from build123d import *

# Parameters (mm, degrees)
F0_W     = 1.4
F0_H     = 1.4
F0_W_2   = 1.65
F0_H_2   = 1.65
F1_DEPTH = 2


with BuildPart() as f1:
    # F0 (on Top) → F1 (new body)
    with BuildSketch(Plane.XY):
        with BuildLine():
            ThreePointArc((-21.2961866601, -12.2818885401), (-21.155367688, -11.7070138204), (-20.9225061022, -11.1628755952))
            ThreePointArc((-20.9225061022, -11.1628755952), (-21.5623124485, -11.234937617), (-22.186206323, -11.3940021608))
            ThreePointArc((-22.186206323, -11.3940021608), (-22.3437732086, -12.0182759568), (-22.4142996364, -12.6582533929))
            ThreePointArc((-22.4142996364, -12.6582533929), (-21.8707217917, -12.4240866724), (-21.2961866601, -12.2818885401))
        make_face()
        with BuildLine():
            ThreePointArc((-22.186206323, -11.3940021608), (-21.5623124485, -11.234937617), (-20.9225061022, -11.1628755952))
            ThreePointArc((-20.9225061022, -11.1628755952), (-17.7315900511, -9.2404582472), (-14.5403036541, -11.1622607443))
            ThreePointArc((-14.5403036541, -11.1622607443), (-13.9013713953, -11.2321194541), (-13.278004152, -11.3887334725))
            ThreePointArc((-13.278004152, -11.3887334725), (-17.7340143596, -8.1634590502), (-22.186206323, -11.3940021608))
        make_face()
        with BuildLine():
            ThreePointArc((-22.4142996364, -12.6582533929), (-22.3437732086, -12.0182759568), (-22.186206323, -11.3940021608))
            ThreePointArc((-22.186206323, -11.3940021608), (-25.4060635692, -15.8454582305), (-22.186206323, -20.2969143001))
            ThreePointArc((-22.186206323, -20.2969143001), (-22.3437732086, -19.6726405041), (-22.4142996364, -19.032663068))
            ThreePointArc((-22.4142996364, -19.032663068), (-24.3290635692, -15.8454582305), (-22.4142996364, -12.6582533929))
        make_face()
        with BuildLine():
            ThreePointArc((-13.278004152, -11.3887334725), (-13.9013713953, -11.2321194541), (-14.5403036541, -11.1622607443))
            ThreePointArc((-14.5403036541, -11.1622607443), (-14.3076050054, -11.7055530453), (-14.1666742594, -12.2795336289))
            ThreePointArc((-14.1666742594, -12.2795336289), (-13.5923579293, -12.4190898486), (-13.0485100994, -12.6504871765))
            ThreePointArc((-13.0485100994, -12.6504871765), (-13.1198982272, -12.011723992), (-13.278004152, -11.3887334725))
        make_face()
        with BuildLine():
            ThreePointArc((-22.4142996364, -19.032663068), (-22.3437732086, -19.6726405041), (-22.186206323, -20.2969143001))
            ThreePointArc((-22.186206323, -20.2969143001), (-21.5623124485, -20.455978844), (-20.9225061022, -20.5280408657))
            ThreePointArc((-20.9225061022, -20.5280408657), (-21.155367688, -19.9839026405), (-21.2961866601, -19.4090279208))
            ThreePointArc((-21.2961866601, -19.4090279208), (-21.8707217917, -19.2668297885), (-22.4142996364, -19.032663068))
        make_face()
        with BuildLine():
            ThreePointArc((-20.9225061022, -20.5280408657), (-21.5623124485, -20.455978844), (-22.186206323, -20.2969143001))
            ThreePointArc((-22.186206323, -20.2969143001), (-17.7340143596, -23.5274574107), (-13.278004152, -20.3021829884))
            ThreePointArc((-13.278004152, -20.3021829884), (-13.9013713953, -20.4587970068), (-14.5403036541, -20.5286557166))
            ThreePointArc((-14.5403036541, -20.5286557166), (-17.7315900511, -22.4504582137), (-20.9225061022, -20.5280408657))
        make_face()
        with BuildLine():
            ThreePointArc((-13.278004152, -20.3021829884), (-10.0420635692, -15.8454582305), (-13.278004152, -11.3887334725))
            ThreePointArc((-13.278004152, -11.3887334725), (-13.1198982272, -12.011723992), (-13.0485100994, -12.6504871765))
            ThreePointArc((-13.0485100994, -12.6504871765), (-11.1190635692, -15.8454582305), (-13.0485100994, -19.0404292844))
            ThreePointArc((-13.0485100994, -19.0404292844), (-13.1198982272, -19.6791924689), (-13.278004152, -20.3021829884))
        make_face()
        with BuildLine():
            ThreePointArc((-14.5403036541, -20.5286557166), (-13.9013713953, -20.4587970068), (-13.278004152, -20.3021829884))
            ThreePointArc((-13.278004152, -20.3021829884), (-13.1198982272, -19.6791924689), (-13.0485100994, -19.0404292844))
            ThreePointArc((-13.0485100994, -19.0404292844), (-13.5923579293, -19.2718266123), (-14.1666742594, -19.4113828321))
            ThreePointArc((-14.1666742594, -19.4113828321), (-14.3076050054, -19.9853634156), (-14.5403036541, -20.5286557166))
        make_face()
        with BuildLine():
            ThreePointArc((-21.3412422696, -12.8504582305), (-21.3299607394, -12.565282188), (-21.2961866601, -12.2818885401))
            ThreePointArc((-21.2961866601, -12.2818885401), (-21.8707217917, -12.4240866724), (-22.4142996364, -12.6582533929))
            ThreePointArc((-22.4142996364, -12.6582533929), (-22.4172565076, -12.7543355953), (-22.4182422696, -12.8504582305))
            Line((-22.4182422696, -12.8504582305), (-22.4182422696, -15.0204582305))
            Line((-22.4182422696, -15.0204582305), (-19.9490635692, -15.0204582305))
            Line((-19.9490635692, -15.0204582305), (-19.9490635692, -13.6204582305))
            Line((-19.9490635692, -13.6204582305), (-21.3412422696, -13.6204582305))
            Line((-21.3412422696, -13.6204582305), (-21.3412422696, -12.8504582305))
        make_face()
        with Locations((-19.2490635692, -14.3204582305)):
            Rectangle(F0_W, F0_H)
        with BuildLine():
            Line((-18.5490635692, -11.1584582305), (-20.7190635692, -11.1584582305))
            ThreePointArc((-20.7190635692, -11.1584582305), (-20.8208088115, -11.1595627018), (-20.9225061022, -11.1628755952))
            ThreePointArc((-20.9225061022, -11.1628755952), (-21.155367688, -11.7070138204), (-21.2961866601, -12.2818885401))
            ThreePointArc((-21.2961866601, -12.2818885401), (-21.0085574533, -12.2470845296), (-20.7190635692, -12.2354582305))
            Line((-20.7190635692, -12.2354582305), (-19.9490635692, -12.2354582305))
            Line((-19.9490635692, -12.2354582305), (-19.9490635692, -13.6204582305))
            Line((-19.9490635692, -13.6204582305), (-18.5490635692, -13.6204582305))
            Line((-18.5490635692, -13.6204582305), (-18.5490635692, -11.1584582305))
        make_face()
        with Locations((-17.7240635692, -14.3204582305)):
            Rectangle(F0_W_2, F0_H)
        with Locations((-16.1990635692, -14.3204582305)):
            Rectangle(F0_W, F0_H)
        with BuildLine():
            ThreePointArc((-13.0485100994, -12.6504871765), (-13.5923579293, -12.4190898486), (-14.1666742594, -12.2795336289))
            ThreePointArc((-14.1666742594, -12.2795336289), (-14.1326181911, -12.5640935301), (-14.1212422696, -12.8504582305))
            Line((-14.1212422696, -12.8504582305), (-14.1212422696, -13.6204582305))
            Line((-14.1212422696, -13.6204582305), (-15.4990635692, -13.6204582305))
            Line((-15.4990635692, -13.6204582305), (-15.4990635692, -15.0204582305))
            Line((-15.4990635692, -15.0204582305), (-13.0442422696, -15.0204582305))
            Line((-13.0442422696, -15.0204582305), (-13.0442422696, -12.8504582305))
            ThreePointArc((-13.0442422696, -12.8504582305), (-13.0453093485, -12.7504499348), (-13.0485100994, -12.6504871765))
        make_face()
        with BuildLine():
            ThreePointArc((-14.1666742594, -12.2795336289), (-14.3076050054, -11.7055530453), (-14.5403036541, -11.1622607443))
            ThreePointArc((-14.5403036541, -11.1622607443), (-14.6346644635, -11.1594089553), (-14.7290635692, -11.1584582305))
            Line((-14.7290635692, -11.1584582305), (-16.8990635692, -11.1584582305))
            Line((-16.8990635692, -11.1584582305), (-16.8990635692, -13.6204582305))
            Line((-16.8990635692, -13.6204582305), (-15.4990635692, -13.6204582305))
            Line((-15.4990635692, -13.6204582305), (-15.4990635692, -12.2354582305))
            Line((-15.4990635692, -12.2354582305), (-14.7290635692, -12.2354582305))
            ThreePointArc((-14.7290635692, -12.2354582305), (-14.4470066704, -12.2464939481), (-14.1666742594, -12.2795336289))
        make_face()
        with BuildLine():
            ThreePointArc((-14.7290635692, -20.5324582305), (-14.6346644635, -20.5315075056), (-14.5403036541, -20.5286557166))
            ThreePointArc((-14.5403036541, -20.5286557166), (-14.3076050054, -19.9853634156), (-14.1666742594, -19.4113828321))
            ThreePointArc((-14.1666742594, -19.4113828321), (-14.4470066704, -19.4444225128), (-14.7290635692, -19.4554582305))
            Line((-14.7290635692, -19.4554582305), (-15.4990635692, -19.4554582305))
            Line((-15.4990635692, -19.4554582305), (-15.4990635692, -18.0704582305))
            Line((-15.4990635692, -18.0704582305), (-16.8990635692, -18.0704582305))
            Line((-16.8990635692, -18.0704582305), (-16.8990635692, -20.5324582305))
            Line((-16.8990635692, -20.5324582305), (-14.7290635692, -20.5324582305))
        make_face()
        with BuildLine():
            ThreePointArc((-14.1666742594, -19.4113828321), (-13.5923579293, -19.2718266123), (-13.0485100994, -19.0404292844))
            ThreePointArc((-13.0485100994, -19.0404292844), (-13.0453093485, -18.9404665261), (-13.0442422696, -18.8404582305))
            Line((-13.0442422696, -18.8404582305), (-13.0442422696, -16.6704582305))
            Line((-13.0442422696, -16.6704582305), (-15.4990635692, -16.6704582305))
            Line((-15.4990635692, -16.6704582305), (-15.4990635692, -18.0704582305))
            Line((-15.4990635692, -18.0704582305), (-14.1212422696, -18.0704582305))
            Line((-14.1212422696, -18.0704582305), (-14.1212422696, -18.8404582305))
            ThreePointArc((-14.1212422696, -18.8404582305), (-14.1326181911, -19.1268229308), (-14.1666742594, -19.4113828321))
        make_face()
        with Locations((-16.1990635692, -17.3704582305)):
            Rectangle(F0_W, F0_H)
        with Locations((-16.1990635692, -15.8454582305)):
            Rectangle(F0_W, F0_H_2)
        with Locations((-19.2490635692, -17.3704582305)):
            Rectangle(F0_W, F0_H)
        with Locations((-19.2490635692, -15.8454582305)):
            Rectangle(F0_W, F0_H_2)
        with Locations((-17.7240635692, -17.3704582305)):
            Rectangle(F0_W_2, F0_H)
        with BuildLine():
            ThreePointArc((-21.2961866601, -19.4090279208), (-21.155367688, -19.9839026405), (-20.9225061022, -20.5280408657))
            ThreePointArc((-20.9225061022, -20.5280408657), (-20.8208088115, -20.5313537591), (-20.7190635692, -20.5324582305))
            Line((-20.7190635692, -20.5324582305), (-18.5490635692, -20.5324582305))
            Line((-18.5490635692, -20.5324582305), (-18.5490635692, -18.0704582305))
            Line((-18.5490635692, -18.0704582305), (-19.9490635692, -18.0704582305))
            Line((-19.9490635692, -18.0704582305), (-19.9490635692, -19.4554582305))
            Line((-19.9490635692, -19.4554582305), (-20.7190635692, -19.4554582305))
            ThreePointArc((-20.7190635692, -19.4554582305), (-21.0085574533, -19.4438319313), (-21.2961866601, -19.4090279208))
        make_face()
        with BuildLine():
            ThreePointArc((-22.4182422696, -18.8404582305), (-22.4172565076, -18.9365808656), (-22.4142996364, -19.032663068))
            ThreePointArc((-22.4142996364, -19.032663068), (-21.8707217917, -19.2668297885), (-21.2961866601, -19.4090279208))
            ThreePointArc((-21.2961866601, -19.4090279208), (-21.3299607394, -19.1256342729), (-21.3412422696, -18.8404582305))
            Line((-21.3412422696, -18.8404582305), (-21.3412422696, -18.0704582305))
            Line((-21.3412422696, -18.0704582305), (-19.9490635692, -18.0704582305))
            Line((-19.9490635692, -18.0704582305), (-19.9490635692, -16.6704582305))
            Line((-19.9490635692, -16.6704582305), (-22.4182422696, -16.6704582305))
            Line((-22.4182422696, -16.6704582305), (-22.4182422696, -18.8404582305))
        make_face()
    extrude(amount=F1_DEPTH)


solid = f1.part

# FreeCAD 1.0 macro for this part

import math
import FreeCAD as App
import Part
import Sketcher

V = App.Vector
Q = App.Units.Quantity

doc = App.newDocument("Part")
body = doc.addObject("PartDesign::Body", "Body")

sketch1 = doc.addObject("Sketcher::SketchObject", "Sketch")
body.addObject(sketch1)
sketch1.AttachmentSupport = (doc.XY_Plane, [""])
sketch1.MapMode = "FlatFace"
sketch1.addGeometry([
    Part.ArcOfCircle(Part.Circle(V(-17.73, -18.84, 0), V(0, 0, 1), 4.69), math.radians(-162), math.radians(-18)),
    Part.ArcOfCircle(Part.Circle(V(-14.73, -15.85, 0), V(0, 0, 1), 4.69), math.radians(-72), math.radians(72)),
    Part.ArcOfCircle(Part.Circle(V(-17.73, -12.85, 0), V(0, 0, 1), 4.69), math.radians(18), math.radians(162)),
    Part.ArcOfCircle(Part.Circle(V(-20.72, -15.85, 0), V(0, 0, 1), 4.69), math.radians(108), math.radians(252)),
    Part.LineSegment(V(-13.04, -16.67, 0), V(-15.5, -16.67, 0)),
    Part.LineSegment(V(-15.5, -16.67, 0), V(-15.5, -15.02, 0)),
    Part.LineSegment(V(-15.5, -15.02, 0), V(-13.04, -15.02, 0)),
    Part.LineSegment(V(-13.04, -15.02, 0), V(-13.04, -12.85, 0)),
    Part.ArcOfCircle(Part.Circle(V(-17.73, -12.85, 0), V(0, 0, 1), 4.69), math.radians(0), math.radians(2.45)),
    Part.ArcOfCircle(Part.Circle(V(-14.73, -15.85, 0), V(0, 0, 1), 3.61), math.radians(-62), math.radians(62)),
    Part.ArcOfCircle(Part.Circle(V(-17.73, -18.84, 0), V(0, 0, 1), 4.69), math.radians(-2.45), math.radians(0)),
    Part.LineSegment(V(-13.04, -18.84, 0), V(-13.04, -16.67, 0)),
    Part.LineSegment(V(-16.9, -20.53, 0), V(-14.73, -20.53, 0)),
    Part.ArcOfCircle(Part.Circle(V(-14.73, -15.85, 0), V(0, 0, 1), 4.69), math.radians(-90), math.radians(-87.69)),
    Part.ArcOfCircle(Part.Circle(V(-17.73, -18.84, 0), V(0, 0, 1), 3.61), math.radians(-152), math.radians(-28)),
    Part.ArcOfCircle(Part.Circle(V(-20.72, -15.85, 0), V(0, 0, 1), 4.69), math.radians(-92.49), math.radians(-90)),
    Part.LineSegment(V(-20.72, -20.53, 0), V(-18.55, -20.53, 0)),
    Part.LineSegment(V(-18.55, -20.53, 0), V(-18.55, -18.07, 0)),
    Part.LineSegment(V(-18.55, -18.07, 0), V(-16.9, -18.07, 0)),
    Part.LineSegment(V(-16.9, -18.07, 0), V(-16.9, -20.53, 0)),
    Part.ArcOfCircle(Part.Circle(V(-20.72, -15.85, 0), V(0, 0, 1), 3.61), math.radians(118), math.radians(242)),
    Part.ArcOfCircle(Part.Circle(V(-17.73, -12.85, 0), V(0, 0, 1), 4.69), math.radians(177.65), math.radians(180)),
    Part.LineSegment(V(-22.42, -12.85, 0), V(-22.42, -15.02, 0)),
    Part.LineSegment(V(-22.42, -15.02, 0), V(-19.95, -15.02, 0)),
    Part.LineSegment(V(-19.95, -15.02, 0), V(-19.95, -16.67, 0)),
    Part.LineSegment(V(-19.95, -16.67, 0), V(-22.42, -16.67, 0)),
    Part.LineSegment(V(-22.42, -16.67, 0), V(-22.42, -18.84, 0)),
    Part.ArcOfCircle(Part.Circle(V(-17.73, -18.84, 0), V(0, 0, 1), 4.69), math.radians(-180), math.radians(-177.65)),
    Part.LineSegment(V(-19.95, -18.07, 0), V(-19.95, -19.46, 0)),
    Part.LineSegment(V(-19.95, -19.46, 0), V(-20.72, -19.46, 0)),
    Part.ArcOfCircle(Part.Circle(V(-20.72, -15.85, 0), V(0, 0, 1), 3.61), math.radians(-99.2), math.radians(-90)),
    Part.ArcOfCircle(Part.Circle(V(-17.73, -18.84, 0), V(0, 0, 1), 3.61), math.radians(180), math.radians(189.06)),
    Part.LineSegment(V(-21.34, -18.84, 0), V(-21.34, -18.07, 0)),
    Part.LineSegment(V(-21.34, -18.07, 0), V(-19.95, -18.07, 0)),
    Part.LineSegment(V(-18.55, -16.67, 0), V(-18.55, -15.02, 0)),
    Part.LineSegment(V(-18.55, -15.02, 0), V(-16.9, -15.02, 0)),
    Part.LineSegment(V(-16.9, -15.02, 0), V(-16.9, -16.67, 0)),
    Part.LineSegment(V(-16.9, -16.67, 0), V(-18.55, -16.67, 0)),
    Part.LineSegment(V(-15.5, -19.46, 0), V(-15.5, -18.07, 0)),
    Part.LineSegment(V(-15.5, -18.07, 0), V(-14.12, -18.07, 0)),
    Part.LineSegment(V(-14.12, -18.07, 0), V(-14.12, -18.84, 0)),
    Part.ArcOfCircle(Part.Circle(V(-17.73, -18.84, 0), V(0, 0, 1), 3.61), math.radians(-9.1), math.radians(0)),
    Part.ArcOfCircle(Part.Circle(V(-14.73, -15.85, 0), V(0, 0, 1), 3.61), math.radians(-90), math.radians(-81.04)),
    Part.LineSegment(V(-14.73, -19.46, 0), V(-15.5, -19.46, 0)),
    Part.LineSegment(V(-19.95, -13.62, 0), V(-21.34, -13.62, 0)),
    Part.LineSegment(V(-21.34, -13.62, 0), V(-21.34, -12.85, 0)),
    Part.ArcOfCircle(Part.Circle(V(-17.73, -12.85, 0), V(0, 0, 1), 3.61), math.radians(170.94), math.radians(180)),
    Part.ArcOfCircle(Part.Circle(V(-20.72, -15.85, 0), V(0, 0, 1), 3.61), math.radians(90), math.radians(99.2)),
    Part.LineSegment(V(-20.72, -12.24, 0), V(-19.95, -12.24, 0)),
    Part.LineSegment(V(-19.95, -12.24, 0), V(-19.95, -13.62, 0)),
    Part.LineSegment(V(-18.55, -13.62, 0), V(-18.55, -11.16, 0)),
    Part.LineSegment(V(-18.55, -11.16, 0), V(-20.72, -11.16, 0)),
    Part.ArcOfCircle(Part.Circle(V(-20.72, -15.85, 0), V(0, 0, 1), 4.69), math.radians(90), math.radians(92.49)),
    Part.ArcOfCircle(Part.Circle(V(-17.73, -12.85, 0), V(0, 0, 1), 3.61), math.radians(28), math.radians(152)),
    Part.ArcOfCircle(Part.Circle(V(-14.73, -15.85, 0), V(0, 0, 1), 4.69), math.radians(87.69), math.radians(90)),
    Part.LineSegment(V(-14.73, -11.16, 0), V(-16.9, -11.16, 0)),
    Part.LineSegment(V(-16.9, -11.16, 0), V(-16.9, -13.62, 0)),
    Part.LineSegment(V(-16.9, -13.62, 0), V(-18.55, -13.62, 0)),
    Part.ArcOfCircle(Part.Circle(V(-17.73, -12.85, 0), V(0, 0, 1), 3.61), math.radians(0), math.radians(9.1)),
    Part.LineSegment(V(-14.12, -12.85, 0), V(-14.12, -13.62, 0)),
    Part.LineSegment(V(-14.12, -13.62, 0), V(-15.5, -13.62, 0)),
    Part.LineSegment(V(-15.5, -13.62, 0), V(-15.5, -12.24, 0)),
    Part.LineSegment(V(-15.5, -12.24, 0), V(-14.73, -12.24, 0)),
    Part.ArcOfCircle(Part.Circle(V(-14.73, -15.85, 0), V(0, 0, 1), 3.61), math.radians(81.04), math.radians(90)),
], False)
sketch1.addConstraint([
    Sketcher.Constraint("Coincident", 0, 2, 1, 1),
    Sketcher.Constraint("Coincident", 1, 2, 2, 1),
    Sketcher.Constraint("Coincident", 2, 2, 3, 1),
    Sketcher.Constraint("Coincident", 3, 2, 0, 1),
    Sketcher.Constraint("Coincident", 4, 2, 5, 1),
    Sketcher.Constraint("Coincident", 5, 2, 6, 1),
    Sketcher.Constraint("Coincident", 6, 2, 7, 1),
    Sketcher.Constraint("Tangent", 7, 2, 8, 1),
    Sketcher.Constraint("Coincident", 8, 2, 9, 2),
    Sketcher.Constraint("Coincident", 9, 1, 10, 1),
    Sketcher.Constraint("Tangent", 10, 2, 11, 1),
    Sketcher.Constraint("Coincident", 11, 2, 4, 1),
    Sketcher.Constraint("Tangent", 12, 2, 13, 1),
    Sketcher.Constraint("Coincident", 13, 2, 14, 2),
    Sketcher.Constraint("Coincident", 14, 1, 15, 1),
    Sketcher.Constraint("Tangent", 15, 2, 16, 1),
    Sketcher.Constraint("Coincident", 16, 2, 17, 1),
    Sketcher.Constraint("Coincident", 17, 2, 18, 1),
    Sketcher.Constraint("Coincident", 18, 2, 19, 1),
    Sketcher.Constraint("Coincident", 19, 2, 12, 1),
    Sketcher.Constraint("Coincident", 20, 1, 21, 1),
    Sketcher.Constraint("Tangent", 21, 2, 22, 1),
    Sketcher.Constraint("Coincident", 22, 2, 23, 1),
    Sketcher.Constraint("Coincident", 23, 2, 24, 1),
    Sketcher.Constraint("Coincident", 24, 2, 25, 1),
    Sketcher.Constraint("Coincident", 25, 2, 26, 1),
    Sketcher.Constraint("Tangent", 26, 2, 27, 1),
    Sketcher.Constraint("Coincident", 27, 2, 20, 2),
    Sketcher.Constraint("Coincident", 28, 2, 29, 1),
    Sketcher.Constraint("Tangent", 29, 2, 30, 2),
    Sketcher.Constraint("Coincident", 30, 1, 31, 2),
    Sketcher.Constraint("Tangent", 31, 1, 32, 1),
    Sketcher.Constraint("Coincident", 32, 2, 33, 1),
    Sketcher.Constraint("Coincident", 33, 2, 28, 1),
    Sketcher.Constraint("Coincident", 34, 2, 35, 1),
    Sketcher.Constraint("Coincident", 35, 2, 36, 1),
    Sketcher.Constraint("Coincident", 36, 2, 37, 1),
    Sketcher.Constraint("Coincident", 37, 2, 34, 1),
    Sketcher.Constraint("Coincident", 38, 2, 39, 1),
    Sketcher.Constraint("Coincident", 39, 2, 40, 1),
    Sketcher.Constraint("Tangent", 40, 2, 41, 2),
    Sketcher.Constraint("Coincident", 41, 1, 42, 2),
    Sketcher.Constraint("Tangent", 42, 1, 43, 1),
    Sketcher.Constraint("Coincident", 43, 2, 38, 1),
    Sketcher.Constraint("Coincident", 44, 2, 45, 1),
    Sketcher.Constraint("Tangent", 45, 2, 46, 2),
    Sketcher.Constraint("Coincident", 46, 1, 47, 2),
    Sketcher.Constraint("Tangent", 47, 1, 48, 1),
    Sketcher.Constraint("Coincident", 48, 2, 49, 1),
    Sketcher.Constraint("Coincident", 49, 2, 44, 1),
    Sketcher.Constraint("Coincident", 50, 2, 51, 1),
    Sketcher.Constraint("Tangent", 51, 2, 52, 1),
    Sketcher.Constraint("Coincident", 52, 2, 53, 2),
    Sketcher.Constraint("Coincident", 53, 1, 54, 1),
    Sketcher.Constraint("Tangent", 54, 2, 55, 1),
    Sketcher.Constraint("Coincident", 55, 2, 56, 1),
    Sketcher.Constraint("Coincident", 56, 2, 57, 1),
    Sketcher.Constraint("Coincident", 57, 2, 50, 1),
    Sketcher.Constraint("Tangent", 58, 1, 59, 1),
    Sketcher.Constraint("Coincident", 59, 2, 60, 1),
    Sketcher.Constraint("Coincident", 60, 2, 61, 1),
    Sketcher.Constraint("Coincident", 61, 2, 62, 1),
    Sketcher.Constraint("Tangent", 62, 2, 63, 2),
    Sketcher.Constraint("Coincident", 63, 1, 58, 2),
    Sketcher.Constraint("Horizontal", 4),
    Sketcher.Constraint("Vertical", 5),
    Sketcher.Constraint("Horizontal", 6),
    Sketcher.Constraint("Vertical", 7),
    Sketcher.Constraint("Vertical", 11),
    Sketcher.Constraint("Horizontal", 12),
    Sketcher.Constraint("Horizontal", 16),
    Sketcher.Constraint("Vertical", 17),
    Sketcher.Constraint("Horizontal", 18),
    Sketcher.Constraint("Vertical", 19),
    Sketcher.Constraint("Vertical", 22),
    Sketcher.Constraint("Horizontal", 23),
    Sketcher.Constraint("Vertical", 24),
    Sketcher.Constraint("Horizontal", 25),
    Sketcher.Constraint("Vertical", 26),
    Sketcher.Constraint("Vertical", 28),
    Sketcher.Constraint("Horizontal", 29),
    Sketcher.Constraint("Vertical", 32),
    Sketcher.Constraint("Horizontal", 33),
    Sketcher.Constraint("Vertical", 34),
    Sketcher.Constraint("Horizontal", 35),
    Sketcher.Constraint("Vertical", 36),
    Sketcher.Constraint("Horizontal", 37),
    Sketcher.Constraint("Vertical", 38),
    Sketcher.Constraint("Horizontal", 39),
    Sketcher.Constraint("Vertical", 40),
    Sketcher.Constraint("Horizontal", 43),
    Sketcher.Constraint("Horizontal", 44),
    Sketcher.Constraint("Vertical", 45),
    Sketcher.Constraint("Horizontal", 48),
    Sketcher.Constraint("Vertical", 49),
    Sketcher.Constraint("Vertical", 50),
    Sketcher.Constraint("Horizontal", 51),
    Sketcher.Constraint("Horizontal", 55),
    Sketcher.Constraint("Vertical", 56),
    Sketcher.Constraint("Horizontal", 57),
    Sketcher.Constraint("Vertical", 59),
    Sketcher.Constraint("Horizontal", 60),
    Sketcher.Constraint("Vertical", 61),
    Sketcher.Constraint("Horizontal", 62),
    Sketcher.Constraint("Coincident", 8, 3, 2, 3),
    Sketcher.Constraint("Coincident", 9, 3, 1, 3),
    Sketcher.Constraint("Coincident", 10, 3, 0, 3),
    Sketcher.Constraint("Coincident", 13, 3, 1, 3),
    Sketcher.Constraint("Coincident", 14, 3, 0, 3),
    Sketcher.Constraint("Coincident", 15, 3, 3, 3),
    Sketcher.Constraint("Coincident", 20, 3, 3, 3),
    Sketcher.Constraint("Coincident", 21, 3, 2, 3),
    Sketcher.Constraint("Coincident", 27, 3, 0, 3),
    Sketcher.Constraint("Coincident", 30, 3, 3, 3),
    Sketcher.Constraint("Coincident", 31, 3, 0, 3),
    Sketcher.Constraint("Coincident", 41, 3, 0, 3),
    Sketcher.Constraint("Coincident", 42, 3, 1, 3),
    Sketcher.Constraint("Coincident", 46, 3, 2, 3),
    Sketcher.Constraint("Coincident", 47, 3, 3, 3),
    Sketcher.Constraint("Coincident", 52, 3, 3, 3),
    Sketcher.Constraint("Coincident", 53, 3, 2, 3),
    Sketcher.Constraint("Coincident", 54, 3, 1, 3),
    Sketcher.Constraint("Coincident", 58, 3, 2, 3),
    Sketcher.Constraint("Coincident", 63, 3, 1, 3),
    Sketcher.Constraint("Equal", 0, 1),
    Sketcher.Constraint("Equal", 1, 2),
    Sketcher.Constraint("Equal", 2, 3),
    Sketcher.Constraint("Equal", 3, 8),
    Sketcher.Constraint("Equal", 8, 10),
    Sketcher.Constraint("Equal", 10, 13),
    Sketcher.Constraint("Equal", 9, 14),
    Sketcher.Constraint("Equal", 13, 15),
    Sketcher.Constraint("Equal", 14, 20),
    Sketcher.Constraint("Equal", 15, 21),
    Sketcher.Constraint("Equal", 21, 27),
    Sketcher.Constraint("Equal", 20, 30),
    Sketcher.Constraint("Equal", 30, 31),
    Sketcher.Constraint("Equal", 31, 41),
    Sketcher.Constraint("Equal", 41, 42),
    Sketcher.Constraint("Equal", 42, 46),
    Sketcher.Constraint("Equal", 46, 47),
    Sketcher.Constraint("Equal", 27, 52),
    Sketcher.Constraint("Equal", 47, 53),
    Sketcher.Constraint("Equal", 52, 54),
    Sketcher.Constraint("Equal", 53, 58),
    Sketcher.Constraint("Equal", 58, 63),
    Sketcher.Constraint("Horizontal", 1, 3, 3, 3),
    Sketcher.Constraint("Horizontal", 6, 2, 22, 2),
    Sketcher.Constraint("Horizontal", 11, 2, 24, 2),
    Sketcher.Constraint("Horizontal", 18, 2, 32, 2),
    Sketcher.Constraint("Horizontal", 23, 2, 34, 2),
    Sketcher.Constraint("Horizontal", 25, 2, 36, 2),
    Sketcher.Constraint("Horizontal", 33, 2, 38, 2),
    Sketcher.Constraint("Horizontal", 49, 2, 56, 2),
    Sketcher.Constraint("Horizontal", 57, 2, 59, 2),
    Sketcher.Constraint("Vertical", 0, 3, 2, 3),
    Sketcher.Constraint("Vertical", 0, 2, 1, 2),
    Sketcher.Constraint("Vertical", 24, 2, 28, 2),
    Sketcher.Constraint("Vertical", 17, 2, 34, 2),
    Sketcher.Constraint("Vertical", 19, 2, 35, 2),
    Sketcher.Constraint("Vertical", 5, 2, 38, 2),
    Sketcher.Constraint("Vertical", 33, 2, 48, 2),
    Sketcher.Constraint("Vertical", 37, 2, 50, 2),
    Sketcher.Constraint("Vertical", 36, 2, 55, 2),
    Sketcher.Constraint("Vertical", 43, 2, 60, 2),
    Sketcher.Constraint("Equal", 12, 16),
    Sketcher.Constraint("Equal", 29, 43),
    Sketcher.Constraint("Equal", 57, 5),
    Sketcher.Constraint("Equal", 55, 7),
    Sketcher.Constraint("Equal", 7, 11),
    Sketcher.Constraint("Equal", 62, 32),
    Sketcher.Constraint("Equal", 40, 45),
    Sketcher.Constraint("Radius", 9, Q("3.61 mm")),
    Sketcher.Constraint("Radius", 0, Q("4.687 mm")),
    Sketcher.Constraint("DistanceX", 12, 1, 12, 2, Q("2.17 mm")),
    Sketcher.Constraint("DistanceX", 18, 1, 18, 2, Q("1.65 mm")),
    Sketcher.Constraint("DistanceX", 29, 2, 29, 1, Q("0.77 mm")),
    Sketcher.Constraint("DistanceX", 4, 2, 4, 1, Q("2.454821 mm")),
    Sketcher.Constraint("DistanceX", 20, 1, -1, 1, Q("22.4143 mm")),
    Sketcher.Constraint("DistanceY", 0, 3, -1, 1, Q("18.840458 mm")),
])
pad1 = doc.addObject("PartDesign::Pad", "Pad")
body.addObject(pad1)
pad1.Profile = sketch1
pad1.Length = 2

doc.recompute()
